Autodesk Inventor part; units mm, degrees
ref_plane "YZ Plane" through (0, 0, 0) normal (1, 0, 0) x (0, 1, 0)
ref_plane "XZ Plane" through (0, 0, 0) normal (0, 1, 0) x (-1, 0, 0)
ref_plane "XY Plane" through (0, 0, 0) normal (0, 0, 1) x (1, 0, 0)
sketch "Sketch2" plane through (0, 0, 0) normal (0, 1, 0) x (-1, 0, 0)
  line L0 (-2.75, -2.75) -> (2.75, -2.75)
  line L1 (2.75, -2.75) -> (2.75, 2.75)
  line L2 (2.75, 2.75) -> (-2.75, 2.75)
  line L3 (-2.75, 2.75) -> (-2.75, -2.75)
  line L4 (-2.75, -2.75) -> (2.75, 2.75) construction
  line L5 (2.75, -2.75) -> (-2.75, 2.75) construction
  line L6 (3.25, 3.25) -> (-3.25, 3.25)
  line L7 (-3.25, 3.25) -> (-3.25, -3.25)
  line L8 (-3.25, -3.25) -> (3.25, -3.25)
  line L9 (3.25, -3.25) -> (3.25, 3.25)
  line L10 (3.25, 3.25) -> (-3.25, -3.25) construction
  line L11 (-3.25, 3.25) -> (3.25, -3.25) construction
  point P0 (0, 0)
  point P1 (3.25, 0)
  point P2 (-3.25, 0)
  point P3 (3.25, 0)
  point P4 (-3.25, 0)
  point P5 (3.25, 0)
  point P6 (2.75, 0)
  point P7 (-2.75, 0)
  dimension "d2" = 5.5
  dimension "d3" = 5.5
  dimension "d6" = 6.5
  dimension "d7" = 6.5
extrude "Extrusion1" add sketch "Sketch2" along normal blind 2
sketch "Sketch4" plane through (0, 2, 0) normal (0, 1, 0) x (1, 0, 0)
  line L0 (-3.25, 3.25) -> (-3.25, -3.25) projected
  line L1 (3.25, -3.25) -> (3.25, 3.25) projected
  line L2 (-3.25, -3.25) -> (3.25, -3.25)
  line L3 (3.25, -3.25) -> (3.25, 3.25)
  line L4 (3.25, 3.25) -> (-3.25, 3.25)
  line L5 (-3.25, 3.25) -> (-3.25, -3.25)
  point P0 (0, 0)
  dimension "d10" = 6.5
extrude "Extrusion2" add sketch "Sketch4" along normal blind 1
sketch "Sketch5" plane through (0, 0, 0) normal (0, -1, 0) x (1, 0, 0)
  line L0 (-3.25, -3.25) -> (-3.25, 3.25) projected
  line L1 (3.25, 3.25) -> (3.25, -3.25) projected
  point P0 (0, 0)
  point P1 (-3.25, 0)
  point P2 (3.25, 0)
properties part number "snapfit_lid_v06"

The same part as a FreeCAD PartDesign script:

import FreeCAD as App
import Part
import Sketcher
from FreeCAD import Vector

doc = App.newDocument("Part")
body = doc.addObject("PartDesign::Body", "Body")

# Sketch on XZ plane
sketch1 = body.newObject("Sketcher::SketchObject", "Sketch")
sketch1.AttachmentSupport = (doc.getObject("XZ_Plane"), [""])
sketch1.MapMode = "FlatFace"
sketch1.addGeometry([
    Part.LineSegment(Vector(-3, -3, 0), Vector(-3, 3, 0)),  # 0
    Part.LineSegment(Vector(-3, 3, 0), Vector(3, 3, 0)),  # 1
    Part.LineSegment(Vector(3, 3, 0), Vector(3, -3, 0)),  # 2
    Part.LineSegment(Vector(3, -3, 0), Vector(-3, -3, 0)),  # 3
    Part.LineSegment(Vector(-3, -3, 0), Vector(3, -3, 0)),  # 4
    Part.LineSegment(Vector(3, -3, 0), Vector(3, 3, 0)),  # 5
    Part.LineSegment(Vector(3, 3, 0), Vector(-3, 3, 0)),  # 6
    Part.LineSegment(Vector(-3, 3, 0), Vector(-3, -3, 0)),  # 7
], False)
sketch1.addConstraint([
    Sketcher.Constraint("Coincident", 0, 2, 1, 1),
    Sketcher.Constraint("Coincident", 1, 2, 2, 1),
    Sketcher.Constraint("Coincident", 2, 2, 3, 1),
    Sketcher.Constraint("Coincident", 3, 2, 0, 1),
    Sketcher.Constraint("Coincident", 4, 2, 5, 1),
    Sketcher.Constraint("Coincident", 5, 2, 6, 1),
    Sketcher.Constraint("Coincident", 6, 2, 7, 1),
    Sketcher.Constraint("Coincident", 7, 2, 4, 1),
    Sketcher.Constraint("Vertical", 0),
    Sketcher.Constraint("Horizontal", 1),
    Sketcher.Constraint("Vertical", 2),
    Sketcher.Constraint("Horizontal", 3),
    Sketcher.Constraint("Horizontal", 4),
    Sketcher.Constraint("Vertical", 5),
    Sketcher.Constraint("Horizontal", 6),
    Sketcher.Constraint("Vertical", 7),
    Sketcher.Constraint("Symmetric", 0, 2, 2, 2, -1, 1),
    Sketcher.Constraint("Symmetric", 4, 2, 6, 2, -1, 1),
    Sketcher.Constraint("Equal", 3, 0),
    Sketcher.Constraint("Equal", 6, 5),
    Sketcher.Constraint("DistanceX", 1, 1, 1, 2, 6.5),
    Sketcher.Constraint("DistanceX", 4, 1, 4, 2, 5.5),
])
pad1 = body.newObject("PartDesign::Pad", "Pad")
pad1.Profile = sketch1
pad1.Length = 2
pad1.Reversed = True

# Sketch on XZ plane
sketch2 = body.newObject("Sketcher::SketchObject", "Sketch001")
sketch2.AttachmentSupport = (doc.getObject("XZ_Plane"), [""])
sketch2.MapMode = "FlatFace"
sketch2.AttachmentOffset = App.Placement(Vector(0, 0, -2), App.Rotation())
sketch2.addGeometry([
    Part.LineSegment(Vector(3, -3, 0), Vector(-3, -3, 0)),
    Part.LineSegment(Vector(-3, -3, 0), Vector(-3, 3, 0)),
    Part.LineSegment(Vector(-3, 3, 0), Vector(3, 3, 0)),
    Part.LineSegment(Vector(3, 3, 0), Vector(3, -3, 0)),
], False)
sketch2.addConstraint([
    Sketcher.Constraint("Coincident", 0, 2, 1, 1),
    Sketcher.Constraint("Coincident", 1, 2, 2, 1),
    Sketcher.Constraint("Coincident", 2, 2, 3, 1),
    Sketcher.Constraint("Coincident", 3, 2, 0, 1),
    Sketcher.Constraint("Horizontal", 0),
    Sketcher.Constraint("Vertical", 1),
    Sketcher.Constraint("Horizontal", 2),
    Sketcher.Constraint("Vertical", 3),
    Sketcher.Constraint("Symmetric", 0, 2, 2, 2, -1, 1),
    Sketcher.Constraint("Equal", 2, 1),
    Sketcher.Constraint("DistanceX", 0, 2, 0, 1, 6.5),
])
pad2 = body.newObject("PartDesign::Pad", "Pad001")
pad2.Profile = sketch2
pad2.Length = 1
pad2.Reversed = True

doc.recompute()
